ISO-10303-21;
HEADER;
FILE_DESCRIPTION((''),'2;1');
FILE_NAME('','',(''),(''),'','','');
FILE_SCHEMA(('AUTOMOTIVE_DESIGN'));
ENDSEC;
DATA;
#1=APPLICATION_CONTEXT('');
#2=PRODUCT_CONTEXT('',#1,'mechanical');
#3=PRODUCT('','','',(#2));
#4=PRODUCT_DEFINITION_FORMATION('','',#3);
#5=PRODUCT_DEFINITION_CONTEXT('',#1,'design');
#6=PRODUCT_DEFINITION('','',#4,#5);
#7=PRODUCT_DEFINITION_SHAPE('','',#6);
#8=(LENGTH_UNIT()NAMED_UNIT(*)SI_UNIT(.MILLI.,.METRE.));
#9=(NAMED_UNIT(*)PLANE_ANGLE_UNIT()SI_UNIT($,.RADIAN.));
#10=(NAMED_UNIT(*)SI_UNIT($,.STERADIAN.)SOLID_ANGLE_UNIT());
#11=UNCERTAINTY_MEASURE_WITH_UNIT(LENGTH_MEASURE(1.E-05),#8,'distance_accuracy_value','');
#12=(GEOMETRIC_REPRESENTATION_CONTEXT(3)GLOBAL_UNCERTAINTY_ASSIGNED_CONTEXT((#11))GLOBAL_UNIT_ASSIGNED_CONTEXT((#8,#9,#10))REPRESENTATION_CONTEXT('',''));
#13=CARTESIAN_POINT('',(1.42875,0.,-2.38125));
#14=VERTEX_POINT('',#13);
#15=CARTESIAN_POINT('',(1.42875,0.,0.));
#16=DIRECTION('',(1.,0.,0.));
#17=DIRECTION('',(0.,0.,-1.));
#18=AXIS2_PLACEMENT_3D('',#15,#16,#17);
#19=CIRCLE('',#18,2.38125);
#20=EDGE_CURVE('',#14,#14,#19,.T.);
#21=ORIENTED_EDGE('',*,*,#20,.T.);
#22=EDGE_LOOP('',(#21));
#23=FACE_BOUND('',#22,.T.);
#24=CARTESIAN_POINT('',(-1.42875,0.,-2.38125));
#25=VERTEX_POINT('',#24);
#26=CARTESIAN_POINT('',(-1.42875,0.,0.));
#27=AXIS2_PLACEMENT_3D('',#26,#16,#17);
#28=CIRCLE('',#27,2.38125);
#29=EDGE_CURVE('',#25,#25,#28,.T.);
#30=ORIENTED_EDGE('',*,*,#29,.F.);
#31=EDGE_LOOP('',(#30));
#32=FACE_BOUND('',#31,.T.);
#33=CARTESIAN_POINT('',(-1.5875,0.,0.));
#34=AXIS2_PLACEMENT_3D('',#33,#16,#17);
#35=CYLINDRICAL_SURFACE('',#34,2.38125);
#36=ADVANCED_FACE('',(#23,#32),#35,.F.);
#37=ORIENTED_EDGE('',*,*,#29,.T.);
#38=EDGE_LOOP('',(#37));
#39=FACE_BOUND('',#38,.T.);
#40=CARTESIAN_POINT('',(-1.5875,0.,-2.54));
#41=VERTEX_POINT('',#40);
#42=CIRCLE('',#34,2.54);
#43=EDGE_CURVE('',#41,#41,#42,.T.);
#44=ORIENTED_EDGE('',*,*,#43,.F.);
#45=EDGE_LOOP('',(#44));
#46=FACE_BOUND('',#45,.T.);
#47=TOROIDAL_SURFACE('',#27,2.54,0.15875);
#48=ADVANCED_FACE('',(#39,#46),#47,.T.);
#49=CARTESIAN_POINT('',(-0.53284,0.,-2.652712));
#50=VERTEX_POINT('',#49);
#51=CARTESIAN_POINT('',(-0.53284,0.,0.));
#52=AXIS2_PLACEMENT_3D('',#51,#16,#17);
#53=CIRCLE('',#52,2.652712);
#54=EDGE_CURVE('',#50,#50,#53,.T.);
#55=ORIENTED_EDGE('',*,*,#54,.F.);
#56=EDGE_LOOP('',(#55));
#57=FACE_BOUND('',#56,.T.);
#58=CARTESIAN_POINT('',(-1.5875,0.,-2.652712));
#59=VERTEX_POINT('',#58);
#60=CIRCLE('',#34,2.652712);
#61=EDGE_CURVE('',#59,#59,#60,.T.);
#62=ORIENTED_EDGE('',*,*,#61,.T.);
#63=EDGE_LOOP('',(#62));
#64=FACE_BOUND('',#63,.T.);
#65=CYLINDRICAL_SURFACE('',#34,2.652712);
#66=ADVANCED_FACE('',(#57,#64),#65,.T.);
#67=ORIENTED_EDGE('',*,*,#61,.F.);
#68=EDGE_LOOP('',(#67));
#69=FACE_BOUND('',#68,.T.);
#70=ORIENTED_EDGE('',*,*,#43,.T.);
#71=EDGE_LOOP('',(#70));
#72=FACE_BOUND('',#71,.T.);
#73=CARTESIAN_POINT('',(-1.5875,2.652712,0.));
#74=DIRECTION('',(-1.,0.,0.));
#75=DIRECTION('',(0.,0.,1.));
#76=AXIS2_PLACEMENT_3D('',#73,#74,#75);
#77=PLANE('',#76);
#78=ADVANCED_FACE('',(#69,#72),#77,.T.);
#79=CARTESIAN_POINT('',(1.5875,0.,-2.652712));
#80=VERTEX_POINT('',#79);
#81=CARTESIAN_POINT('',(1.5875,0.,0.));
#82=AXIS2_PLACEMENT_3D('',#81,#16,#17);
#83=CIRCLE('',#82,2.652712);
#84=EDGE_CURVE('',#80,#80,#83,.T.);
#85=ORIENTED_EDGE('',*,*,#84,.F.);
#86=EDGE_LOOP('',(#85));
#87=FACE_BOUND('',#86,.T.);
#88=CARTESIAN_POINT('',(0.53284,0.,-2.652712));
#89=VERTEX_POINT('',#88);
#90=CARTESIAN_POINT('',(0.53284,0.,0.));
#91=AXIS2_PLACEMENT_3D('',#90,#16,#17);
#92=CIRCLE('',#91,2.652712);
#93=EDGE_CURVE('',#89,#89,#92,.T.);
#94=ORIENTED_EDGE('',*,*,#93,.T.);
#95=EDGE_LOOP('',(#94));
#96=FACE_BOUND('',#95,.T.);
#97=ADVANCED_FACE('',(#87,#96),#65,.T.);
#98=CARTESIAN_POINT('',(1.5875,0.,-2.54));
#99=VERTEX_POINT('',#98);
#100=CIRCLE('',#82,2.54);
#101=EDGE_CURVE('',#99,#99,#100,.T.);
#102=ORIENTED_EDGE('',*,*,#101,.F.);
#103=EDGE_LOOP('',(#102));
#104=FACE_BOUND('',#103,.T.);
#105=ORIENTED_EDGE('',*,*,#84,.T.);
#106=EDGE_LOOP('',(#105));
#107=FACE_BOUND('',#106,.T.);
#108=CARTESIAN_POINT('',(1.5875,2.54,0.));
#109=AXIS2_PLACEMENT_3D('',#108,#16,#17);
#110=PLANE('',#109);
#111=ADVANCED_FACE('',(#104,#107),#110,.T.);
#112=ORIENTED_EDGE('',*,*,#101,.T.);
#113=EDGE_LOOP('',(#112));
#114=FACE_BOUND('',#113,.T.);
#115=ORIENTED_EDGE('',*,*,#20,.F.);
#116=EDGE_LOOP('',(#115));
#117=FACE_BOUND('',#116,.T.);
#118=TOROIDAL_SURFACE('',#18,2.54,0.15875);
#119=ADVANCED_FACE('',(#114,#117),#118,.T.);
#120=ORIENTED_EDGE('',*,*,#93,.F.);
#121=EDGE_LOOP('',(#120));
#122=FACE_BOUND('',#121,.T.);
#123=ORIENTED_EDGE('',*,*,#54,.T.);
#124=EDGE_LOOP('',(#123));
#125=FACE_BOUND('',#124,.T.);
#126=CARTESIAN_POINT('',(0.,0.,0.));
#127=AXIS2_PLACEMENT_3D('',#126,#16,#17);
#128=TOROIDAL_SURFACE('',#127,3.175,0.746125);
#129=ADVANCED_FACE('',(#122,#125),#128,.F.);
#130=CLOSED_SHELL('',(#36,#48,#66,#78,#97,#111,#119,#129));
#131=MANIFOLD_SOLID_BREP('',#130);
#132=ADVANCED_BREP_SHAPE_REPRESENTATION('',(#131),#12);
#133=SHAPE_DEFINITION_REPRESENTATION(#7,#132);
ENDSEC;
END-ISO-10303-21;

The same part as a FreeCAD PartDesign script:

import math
import FreeCAD as App
import Part
import Sketcher

V = App.Vector
Q = App.Units.Quantity

doc = App.newDocument("Part")
body = doc.addObject("PartDesign::Body", "Body")

sketch1 = body.newObject("Sketcher::SketchObject", "Sketch")
sketch1.AttachmentSupport = (doc.getObject("XY_Plane"), [""])
sketch1.MapMode = "FlatFace"
sketch1.addGeometry([
    Part.LineSegment(V(-1.43, 2.38, 0), V(1.43, 2.38, 0)),
    Part.ArcOfCircle(Part.Circle(V(1.43, 2.54, 0), V(0, 0, 1), 0.16), math.radians(-90), math.radians(0)),
    Part.LineSegment(V(1.59, 2.54, 0), V(1.59, 2.65, 0)),
    Part.LineSegment(V(1.59, 2.65, 0), V(0.53, 2.65, 0)),
    Part.ArcOfCircle(Part.Circle(V(0, 3.18, 0), V(0, 0, 1), 0.75), math.radians(-136), math.radians(-44)),
    Part.LineSegment(V(-0.53, 2.65, 0), V(-1.59, 2.65, 0)),
    Part.LineSegment(V(-1.59, 2.65, 0), V(-1.59, 2.54, 0)),
    Part.ArcOfCircle(Part.Circle(V(-1.43, 2.54, 0), V(0, 0, 1), 0.16), math.radians(180), math.radians(270)),
], False)
sketch1.addConstraint([
    Sketcher.Constraint("Tangent", 0, 2, 1, 1),
    Sketcher.Constraint("Tangent", 1, 2, 2, 1),
    Sketcher.Constraint("Coincident", 2, 2, 3, 1),
    Sketcher.Constraint("Coincident", 3, 2, 4, 2),
    Sketcher.Constraint("Coincident", 4, 1, 5, 1),
    Sketcher.Constraint("Coincident", 5, 2, 6, 1),
    Sketcher.Constraint("Tangent", 6, 2, 7, 1),
    Sketcher.Constraint("Tangent", 7, 2, 0, 1),
    Sketcher.Constraint("Horizontal", 0),
    Sketcher.Constraint("Vertical", 2),
    Sketcher.Constraint("Horizontal", 3),
    Sketcher.Constraint("Horizontal", 5),
    Sketcher.Constraint("Vertical", 6),
    Sketcher.Constraint("Equal", 1, 7),
    Sketcher.Constraint("Symmetric", 3, 2, 4, 1, -2),
    Sketcher.Constraint("Equal", 3, 5),
    Sketcher.Constraint("DistanceY", -1, 1, 1, 3, Q("2.54 mm")),
    Sketcher.Constraint("Radius", 1, Q("0.15875 mm")),
    Sketcher.Constraint("DistanceX", 0, 1, 0, 2, Q("2.8575 mm")),
    Sketcher.Constraint("DistanceY", -1, 1, 4, 3, Q("3.175 mm")),
    Sketcher.Constraint("Radius", 4, Q("0.746125 mm")),
    Sketcher.Constraint("DistanceX", 3, 2, 3, 1, Q("1.05466 mm")),
])
revolution = body.newObject("PartDesign::Revolution", "Revolution")
revolution.Profile = sketch1
revolution.ReferenceAxis = (sketch1, ["H_Axis"])
revolution.Angle = 360

doc.recompute()
